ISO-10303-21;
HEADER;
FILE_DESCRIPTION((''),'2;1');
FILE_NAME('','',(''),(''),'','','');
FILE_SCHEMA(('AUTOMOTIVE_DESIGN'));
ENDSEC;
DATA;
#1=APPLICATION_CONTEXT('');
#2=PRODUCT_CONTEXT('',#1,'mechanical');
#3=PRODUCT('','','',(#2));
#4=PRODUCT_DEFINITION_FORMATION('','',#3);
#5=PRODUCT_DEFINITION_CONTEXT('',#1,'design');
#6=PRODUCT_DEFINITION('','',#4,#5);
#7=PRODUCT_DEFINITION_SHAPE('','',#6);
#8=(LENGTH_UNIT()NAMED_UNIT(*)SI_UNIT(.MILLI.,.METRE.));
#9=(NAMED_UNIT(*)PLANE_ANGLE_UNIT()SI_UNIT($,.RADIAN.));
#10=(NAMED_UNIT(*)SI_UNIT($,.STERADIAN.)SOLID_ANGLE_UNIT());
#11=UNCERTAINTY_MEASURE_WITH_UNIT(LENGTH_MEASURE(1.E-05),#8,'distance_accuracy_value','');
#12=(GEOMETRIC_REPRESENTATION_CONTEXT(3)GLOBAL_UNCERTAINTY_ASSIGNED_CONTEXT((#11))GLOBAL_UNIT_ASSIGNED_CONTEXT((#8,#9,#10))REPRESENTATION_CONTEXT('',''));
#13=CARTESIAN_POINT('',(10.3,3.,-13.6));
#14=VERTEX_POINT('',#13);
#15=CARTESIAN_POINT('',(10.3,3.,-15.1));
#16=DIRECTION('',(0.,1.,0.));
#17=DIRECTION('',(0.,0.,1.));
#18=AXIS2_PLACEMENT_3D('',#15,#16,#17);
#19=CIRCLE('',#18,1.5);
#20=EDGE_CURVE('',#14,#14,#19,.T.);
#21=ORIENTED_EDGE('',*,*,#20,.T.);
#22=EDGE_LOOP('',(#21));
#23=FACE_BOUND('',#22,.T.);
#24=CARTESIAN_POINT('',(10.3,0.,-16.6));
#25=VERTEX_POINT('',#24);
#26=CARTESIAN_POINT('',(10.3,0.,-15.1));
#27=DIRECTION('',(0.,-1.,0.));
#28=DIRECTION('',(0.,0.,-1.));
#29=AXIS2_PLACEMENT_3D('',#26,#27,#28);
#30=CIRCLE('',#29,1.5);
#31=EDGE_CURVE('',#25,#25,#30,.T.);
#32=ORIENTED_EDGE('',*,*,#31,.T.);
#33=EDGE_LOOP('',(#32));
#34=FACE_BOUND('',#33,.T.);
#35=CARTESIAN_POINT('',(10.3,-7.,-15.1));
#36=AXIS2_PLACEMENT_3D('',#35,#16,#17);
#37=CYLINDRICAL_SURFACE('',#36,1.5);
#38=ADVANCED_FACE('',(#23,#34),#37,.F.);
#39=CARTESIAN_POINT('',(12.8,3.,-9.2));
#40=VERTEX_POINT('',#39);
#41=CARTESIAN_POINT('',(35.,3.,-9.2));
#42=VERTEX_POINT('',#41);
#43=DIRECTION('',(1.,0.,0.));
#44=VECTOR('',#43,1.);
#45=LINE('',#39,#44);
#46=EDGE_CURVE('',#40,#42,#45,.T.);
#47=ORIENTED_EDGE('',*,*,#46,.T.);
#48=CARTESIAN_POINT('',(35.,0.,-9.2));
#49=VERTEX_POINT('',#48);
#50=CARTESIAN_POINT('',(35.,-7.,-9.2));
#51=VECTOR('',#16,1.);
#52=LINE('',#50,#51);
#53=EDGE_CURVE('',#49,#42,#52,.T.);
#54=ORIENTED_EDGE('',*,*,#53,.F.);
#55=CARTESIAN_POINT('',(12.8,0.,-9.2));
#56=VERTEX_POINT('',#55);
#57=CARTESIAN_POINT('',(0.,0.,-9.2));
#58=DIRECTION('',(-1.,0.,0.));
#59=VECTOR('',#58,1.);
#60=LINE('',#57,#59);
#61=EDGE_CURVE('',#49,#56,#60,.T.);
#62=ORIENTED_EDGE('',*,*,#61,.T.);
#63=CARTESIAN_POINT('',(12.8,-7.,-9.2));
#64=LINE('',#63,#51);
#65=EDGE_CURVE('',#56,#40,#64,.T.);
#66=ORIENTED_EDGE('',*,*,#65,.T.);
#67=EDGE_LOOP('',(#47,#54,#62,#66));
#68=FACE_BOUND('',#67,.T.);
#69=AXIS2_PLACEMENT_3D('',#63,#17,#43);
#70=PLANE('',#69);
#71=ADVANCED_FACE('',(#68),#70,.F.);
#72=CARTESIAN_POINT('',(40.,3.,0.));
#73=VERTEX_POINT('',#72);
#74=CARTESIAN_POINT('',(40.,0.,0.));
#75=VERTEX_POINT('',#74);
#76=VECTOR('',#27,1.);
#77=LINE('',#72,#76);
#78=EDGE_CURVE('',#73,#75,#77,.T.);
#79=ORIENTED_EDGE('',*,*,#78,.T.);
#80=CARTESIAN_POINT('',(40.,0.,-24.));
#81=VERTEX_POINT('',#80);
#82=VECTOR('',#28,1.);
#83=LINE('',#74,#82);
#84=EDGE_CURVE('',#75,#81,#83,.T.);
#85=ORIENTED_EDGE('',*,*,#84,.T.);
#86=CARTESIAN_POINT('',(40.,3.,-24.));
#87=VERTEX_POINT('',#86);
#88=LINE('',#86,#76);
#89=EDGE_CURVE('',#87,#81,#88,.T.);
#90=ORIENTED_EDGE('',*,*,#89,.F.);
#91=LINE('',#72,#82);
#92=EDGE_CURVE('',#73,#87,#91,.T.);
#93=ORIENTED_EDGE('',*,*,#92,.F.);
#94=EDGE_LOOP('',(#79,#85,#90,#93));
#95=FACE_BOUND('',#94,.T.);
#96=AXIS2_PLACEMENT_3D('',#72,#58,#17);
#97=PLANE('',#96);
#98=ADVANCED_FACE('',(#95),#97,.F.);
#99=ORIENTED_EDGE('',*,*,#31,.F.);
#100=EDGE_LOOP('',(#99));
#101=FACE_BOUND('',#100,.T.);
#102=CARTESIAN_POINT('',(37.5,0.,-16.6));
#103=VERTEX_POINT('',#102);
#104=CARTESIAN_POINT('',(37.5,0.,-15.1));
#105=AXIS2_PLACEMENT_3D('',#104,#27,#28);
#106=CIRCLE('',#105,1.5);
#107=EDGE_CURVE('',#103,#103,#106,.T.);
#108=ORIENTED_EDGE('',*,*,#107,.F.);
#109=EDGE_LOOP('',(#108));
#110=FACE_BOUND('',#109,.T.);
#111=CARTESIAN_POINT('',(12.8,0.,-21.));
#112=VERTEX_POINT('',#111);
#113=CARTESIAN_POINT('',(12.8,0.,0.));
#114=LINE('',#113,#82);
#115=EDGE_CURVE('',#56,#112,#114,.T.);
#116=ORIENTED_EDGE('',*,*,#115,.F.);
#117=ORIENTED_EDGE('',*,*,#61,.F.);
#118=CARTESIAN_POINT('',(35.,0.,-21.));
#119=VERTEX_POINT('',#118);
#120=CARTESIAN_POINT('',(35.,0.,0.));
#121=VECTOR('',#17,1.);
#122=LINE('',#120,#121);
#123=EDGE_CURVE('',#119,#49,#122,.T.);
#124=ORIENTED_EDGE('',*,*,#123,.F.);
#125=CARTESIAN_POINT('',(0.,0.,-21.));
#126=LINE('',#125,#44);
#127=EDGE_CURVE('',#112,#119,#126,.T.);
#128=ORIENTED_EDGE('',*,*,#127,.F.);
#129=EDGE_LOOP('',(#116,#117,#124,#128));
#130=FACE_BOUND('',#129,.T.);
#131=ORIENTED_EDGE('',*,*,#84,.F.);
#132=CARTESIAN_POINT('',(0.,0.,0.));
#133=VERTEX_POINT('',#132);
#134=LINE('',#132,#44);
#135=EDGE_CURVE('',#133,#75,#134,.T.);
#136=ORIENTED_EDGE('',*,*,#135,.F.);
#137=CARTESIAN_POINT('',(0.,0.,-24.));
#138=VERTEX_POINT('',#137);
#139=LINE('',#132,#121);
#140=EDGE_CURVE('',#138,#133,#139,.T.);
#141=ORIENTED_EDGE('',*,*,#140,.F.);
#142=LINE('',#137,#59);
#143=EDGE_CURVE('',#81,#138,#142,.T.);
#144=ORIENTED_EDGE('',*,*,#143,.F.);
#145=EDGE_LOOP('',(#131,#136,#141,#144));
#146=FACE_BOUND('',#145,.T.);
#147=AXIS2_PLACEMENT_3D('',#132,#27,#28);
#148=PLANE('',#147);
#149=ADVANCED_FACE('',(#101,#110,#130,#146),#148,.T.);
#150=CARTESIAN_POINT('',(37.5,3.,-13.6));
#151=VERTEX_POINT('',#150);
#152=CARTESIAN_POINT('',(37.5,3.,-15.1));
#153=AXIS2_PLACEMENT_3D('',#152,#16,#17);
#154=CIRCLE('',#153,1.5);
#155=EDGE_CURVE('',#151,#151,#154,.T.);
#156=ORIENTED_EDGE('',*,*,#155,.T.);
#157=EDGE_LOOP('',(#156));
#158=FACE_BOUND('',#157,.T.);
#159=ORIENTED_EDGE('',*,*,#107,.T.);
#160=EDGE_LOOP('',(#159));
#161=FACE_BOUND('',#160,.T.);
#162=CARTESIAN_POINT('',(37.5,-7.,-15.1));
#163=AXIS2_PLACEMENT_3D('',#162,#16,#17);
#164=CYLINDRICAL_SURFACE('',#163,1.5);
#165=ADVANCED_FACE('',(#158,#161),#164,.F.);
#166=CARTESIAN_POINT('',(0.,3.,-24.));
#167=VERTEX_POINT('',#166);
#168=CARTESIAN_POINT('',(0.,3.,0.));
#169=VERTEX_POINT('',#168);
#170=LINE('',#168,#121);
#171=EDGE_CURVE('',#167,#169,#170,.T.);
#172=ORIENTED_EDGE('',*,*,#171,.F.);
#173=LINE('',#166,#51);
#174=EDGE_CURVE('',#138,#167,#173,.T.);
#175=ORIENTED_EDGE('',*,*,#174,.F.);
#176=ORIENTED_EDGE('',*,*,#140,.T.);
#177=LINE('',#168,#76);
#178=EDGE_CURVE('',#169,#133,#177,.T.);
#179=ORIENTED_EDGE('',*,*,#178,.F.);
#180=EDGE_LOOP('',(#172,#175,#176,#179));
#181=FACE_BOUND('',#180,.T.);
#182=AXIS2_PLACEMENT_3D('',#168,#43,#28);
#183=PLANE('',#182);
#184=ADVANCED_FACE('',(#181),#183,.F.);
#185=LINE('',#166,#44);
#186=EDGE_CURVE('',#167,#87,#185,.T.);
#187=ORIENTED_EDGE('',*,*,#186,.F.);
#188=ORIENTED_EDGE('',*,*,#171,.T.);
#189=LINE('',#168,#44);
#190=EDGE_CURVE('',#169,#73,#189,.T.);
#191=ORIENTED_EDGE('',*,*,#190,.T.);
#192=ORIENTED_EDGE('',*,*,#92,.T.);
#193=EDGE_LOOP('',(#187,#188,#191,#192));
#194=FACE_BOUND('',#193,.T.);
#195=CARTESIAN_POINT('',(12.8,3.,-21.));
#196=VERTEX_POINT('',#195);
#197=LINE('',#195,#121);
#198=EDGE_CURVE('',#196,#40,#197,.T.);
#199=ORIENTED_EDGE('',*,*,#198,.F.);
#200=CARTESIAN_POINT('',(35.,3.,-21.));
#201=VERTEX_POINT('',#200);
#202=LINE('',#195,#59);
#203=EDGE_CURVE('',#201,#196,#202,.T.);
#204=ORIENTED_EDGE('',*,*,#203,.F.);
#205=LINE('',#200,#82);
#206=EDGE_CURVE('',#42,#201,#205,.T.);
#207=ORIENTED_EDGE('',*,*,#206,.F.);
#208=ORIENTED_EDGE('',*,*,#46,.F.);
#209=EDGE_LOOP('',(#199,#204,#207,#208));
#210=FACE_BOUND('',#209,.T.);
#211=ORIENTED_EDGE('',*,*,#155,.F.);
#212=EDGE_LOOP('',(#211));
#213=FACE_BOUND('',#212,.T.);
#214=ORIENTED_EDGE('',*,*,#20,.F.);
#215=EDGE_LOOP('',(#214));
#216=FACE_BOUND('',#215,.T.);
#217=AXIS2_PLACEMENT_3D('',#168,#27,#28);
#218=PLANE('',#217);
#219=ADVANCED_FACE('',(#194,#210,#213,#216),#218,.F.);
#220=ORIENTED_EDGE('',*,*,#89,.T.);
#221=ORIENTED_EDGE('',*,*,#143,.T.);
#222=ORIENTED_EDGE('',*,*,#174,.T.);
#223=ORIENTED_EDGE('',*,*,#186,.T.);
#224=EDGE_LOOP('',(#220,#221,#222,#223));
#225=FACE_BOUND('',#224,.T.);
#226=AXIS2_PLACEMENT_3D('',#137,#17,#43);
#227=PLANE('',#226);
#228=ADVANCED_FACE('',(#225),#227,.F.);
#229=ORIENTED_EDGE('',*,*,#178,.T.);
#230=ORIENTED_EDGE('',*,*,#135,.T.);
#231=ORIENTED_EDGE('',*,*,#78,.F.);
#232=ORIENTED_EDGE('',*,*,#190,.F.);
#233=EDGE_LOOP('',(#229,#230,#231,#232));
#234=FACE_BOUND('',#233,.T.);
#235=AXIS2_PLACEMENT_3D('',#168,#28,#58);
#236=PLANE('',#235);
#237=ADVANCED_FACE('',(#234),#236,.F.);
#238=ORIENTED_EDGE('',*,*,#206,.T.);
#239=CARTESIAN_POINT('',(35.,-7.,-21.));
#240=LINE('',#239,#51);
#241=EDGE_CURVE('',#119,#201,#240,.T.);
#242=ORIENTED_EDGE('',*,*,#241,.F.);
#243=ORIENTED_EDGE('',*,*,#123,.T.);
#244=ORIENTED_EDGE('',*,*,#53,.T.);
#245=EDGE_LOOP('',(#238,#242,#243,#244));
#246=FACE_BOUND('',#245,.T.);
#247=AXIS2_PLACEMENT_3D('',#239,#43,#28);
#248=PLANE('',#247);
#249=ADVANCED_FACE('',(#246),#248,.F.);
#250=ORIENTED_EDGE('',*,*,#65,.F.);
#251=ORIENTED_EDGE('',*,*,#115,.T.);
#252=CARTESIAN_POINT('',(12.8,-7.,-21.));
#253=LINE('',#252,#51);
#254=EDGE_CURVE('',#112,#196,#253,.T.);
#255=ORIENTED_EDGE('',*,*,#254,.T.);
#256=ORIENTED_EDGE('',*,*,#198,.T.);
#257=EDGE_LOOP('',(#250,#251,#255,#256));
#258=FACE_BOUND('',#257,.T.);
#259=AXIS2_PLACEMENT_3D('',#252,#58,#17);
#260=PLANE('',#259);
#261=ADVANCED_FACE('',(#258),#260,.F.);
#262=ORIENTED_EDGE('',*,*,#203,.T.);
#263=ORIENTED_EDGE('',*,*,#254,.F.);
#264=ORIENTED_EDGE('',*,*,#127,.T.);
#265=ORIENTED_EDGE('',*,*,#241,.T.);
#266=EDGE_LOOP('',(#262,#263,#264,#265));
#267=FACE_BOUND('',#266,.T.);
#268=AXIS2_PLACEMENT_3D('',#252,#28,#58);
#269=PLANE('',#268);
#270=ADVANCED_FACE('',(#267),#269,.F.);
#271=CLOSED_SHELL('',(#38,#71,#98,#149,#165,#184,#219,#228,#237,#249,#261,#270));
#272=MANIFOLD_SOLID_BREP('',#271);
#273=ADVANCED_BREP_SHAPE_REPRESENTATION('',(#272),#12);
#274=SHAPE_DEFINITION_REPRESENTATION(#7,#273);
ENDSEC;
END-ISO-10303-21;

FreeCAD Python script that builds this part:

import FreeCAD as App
import Part
import Sketcher
from FreeCAD import Vector


def add_polygon(sketch, points):
    """Adds a closed chain of lines whose ends are joined by coincident constraints."""
    first, n = sketch.GeometryCount, len(points)
    for a, b in zip(points, points[1:] + points[:1]):
        sketch.addGeometry(Part.LineSegment(App.Vector(*a, 0), App.Vector(*b, 0)), False)
    for i in range(n):
        sketch.addConstraint(Sketcher.Constraint("Coincident", first + i, 2, first + (i + 1) % n, 1))

doc = App.newDocument("Part")
body = doc.addObject("PartDesign::Body", "Body")

sketch1 = doc.addObject("Sketcher::SketchObject", "Sketch")
body.addObject(sketch1)
sketch1.AttachmentSupport = (doc.XZ_Plane, [""])
sketch1.MapMode = "FlatFace"
add_polygon(sketch1, [(0, -21), (0, 0), (40, 0), (40, -21)])
sketch1.addConstraint(Sketcher.Constraint("Vertical", 0))
sketch1.addConstraint(Sketcher.Constraint("Horizontal", 1))
sketch1.addConstraint(Sketcher.Constraint("Vertical", 2))
sketch1.addConstraint(Sketcher.Constraint("Horizontal", 3))
sketch1.addConstraint(Sketcher.Constraint("Coincident", 0, 2, -1, 1))
sketch1.addConstraint(Sketcher.Constraint("DistanceX", 1, 1, 1, 2, 40.0))
sketch1.addConstraint(Sketcher.Constraint("DistanceY", 0, 1, 0, 2, 21.0))
pad1 = doc.addObject("PartDesign::Pad", "Pad")
body.addObject(pad1)
pad1.Profile = sketch1
pad1.Length = 3
pad1.Reversed = True

sketch2 = doc.addObject("Sketcher::SketchObject", "Sketch001")
body.addObject(sketch2)
sketch2.AttachmentSupport = (doc.XY_Plane, [""])
sketch2.MapMode = "FlatFace"
sketch2.AttachmentOffset = App.Placement(Vector(0, 0, -21), App.Rotation())
add_polygon(sketch2, [(40, 3), (40, 0), (0, 0), (0, 3)])
sketch2.addConstraint(Sketcher.Constraint("Vertical", 0))
sketch2.addConstraint(Sketcher.Constraint("Horizontal", 1))
sketch2.addConstraint(Sketcher.Constraint("Vertical", 2))
sketch2.addConstraint(Sketcher.Constraint("Horizontal", 3))
sketch2.addConstraint(Sketcher.Constraint("Coincident", 1, 2, -1, 1))
sketch2.addConstraint(Sketcher.Constraint("DistanceX", 1, 2, 1, 1, 40.0))
sketch2.addConstraint(Sketcher.Constraint("DistanceY", 0, 2, 0, 1, 3.0))
pad2 = doc.addObject("PartDesign::Pad", "Pad001")
body.addObject(pad2)
pad2.Profile = sketch2
pad2.Length = 3
pad2.Reversed = True

sketch3 = doc.addObject("Sketcher::SketchObject", "Sketch002")
body.addObject(sketch3)
sketch3.AttachmentSupport = (doc.XZ_Plane, [""])
sketch3.MapMode = "FlatFace"
sketch3.AttachmentOffset = App.Placement(Vector(0, 0, -3), App.Rotation())
add_polygon(sketch3, [(13, -21), (13, -9), (35, -9), (35, -21)])
sketch3.addConstraint(Sketcher.Constraint("Vertical", 0))
sketch3.addConstraint(Sketcher.Constraint("Horizontal", 1))
sketch3.addConstraint(Sketcher.Constraint("Vertical", 2))
sketch3.addConstraint(Sketcher.Constraint("Horizontal", 3))
sketch3.addConstraint(Sketcher.Constraint("DistanceX", 1, 1, 1, 2, 22.2))
sketch3.addConstraint(Sketcher.Constraint("DistanceY", 0, 1, 0, 2, 11.8))
sketch3.addConstraint(Sketcher.Constraint("DistanceX", -1, 1, 1, 2, 35.0))
sketch3.addConstraint(Sketcher.Constraint("DistanceY", 2, 2, -1, 1, 21.0))
pocket1 = doc.addObject("PartDesign::Pocket", "Pocket")
body.addObject(pocket1)
pocket1.Profile = sketch3
pocket1.Length = 10
pocket1.Reversed = True

sketch4 = doc.addObject("Sketcher::SketchObject", "Sketch003")
body.addObject(sketch4)
sketch4.AttachmentSupport = (doc.XZ_Plane, [""])
sketch4.MapMode = "FlatFace"
sketch4.AttachmentOffset = App.Placement(Vector(0, 0, -3), App.Rotation())
sketch4.addGeometry(Part.Circle(Vector(10.3, -15.1, 0), Vector(0, 0, 1), 1.5), False)
sketch4.addGeometry(Part.Circle(Vector(37.5, -15.1, 0), Vector(0, 0, 1), 1.5), False)
sketch4.addConstraint(Sketcher.Constraint("Equal", 0, 1))
sketch4.addConstraint(Sketcher.Constraint("Horizontal", 0, 3, 1, 3))
sketch4.addConstraint(Sketcher.Constraint("Diameter", 0, 3.0))
sketch4.addConstraint(Sketcher.Constraint("DistanceX", -1, 1, 0, 3, 10.3))
sketch4.addConstraint(Sketcher.Constraint("DistanceY", 0, 3, -1, 1, 15.1))
sketch4.addConstraint(Sketcher.Constraint("DistanceX", -1, 1, 1, 3, 37.5))
pocket2 = doc.addObject("PartDesign::Pocket", "Pocket001")
body.addObject(pocket2)
pocket2.Profile = sketch4
pocket2.Length = 10
pocket2.Reversed = True

doc.recompute()
